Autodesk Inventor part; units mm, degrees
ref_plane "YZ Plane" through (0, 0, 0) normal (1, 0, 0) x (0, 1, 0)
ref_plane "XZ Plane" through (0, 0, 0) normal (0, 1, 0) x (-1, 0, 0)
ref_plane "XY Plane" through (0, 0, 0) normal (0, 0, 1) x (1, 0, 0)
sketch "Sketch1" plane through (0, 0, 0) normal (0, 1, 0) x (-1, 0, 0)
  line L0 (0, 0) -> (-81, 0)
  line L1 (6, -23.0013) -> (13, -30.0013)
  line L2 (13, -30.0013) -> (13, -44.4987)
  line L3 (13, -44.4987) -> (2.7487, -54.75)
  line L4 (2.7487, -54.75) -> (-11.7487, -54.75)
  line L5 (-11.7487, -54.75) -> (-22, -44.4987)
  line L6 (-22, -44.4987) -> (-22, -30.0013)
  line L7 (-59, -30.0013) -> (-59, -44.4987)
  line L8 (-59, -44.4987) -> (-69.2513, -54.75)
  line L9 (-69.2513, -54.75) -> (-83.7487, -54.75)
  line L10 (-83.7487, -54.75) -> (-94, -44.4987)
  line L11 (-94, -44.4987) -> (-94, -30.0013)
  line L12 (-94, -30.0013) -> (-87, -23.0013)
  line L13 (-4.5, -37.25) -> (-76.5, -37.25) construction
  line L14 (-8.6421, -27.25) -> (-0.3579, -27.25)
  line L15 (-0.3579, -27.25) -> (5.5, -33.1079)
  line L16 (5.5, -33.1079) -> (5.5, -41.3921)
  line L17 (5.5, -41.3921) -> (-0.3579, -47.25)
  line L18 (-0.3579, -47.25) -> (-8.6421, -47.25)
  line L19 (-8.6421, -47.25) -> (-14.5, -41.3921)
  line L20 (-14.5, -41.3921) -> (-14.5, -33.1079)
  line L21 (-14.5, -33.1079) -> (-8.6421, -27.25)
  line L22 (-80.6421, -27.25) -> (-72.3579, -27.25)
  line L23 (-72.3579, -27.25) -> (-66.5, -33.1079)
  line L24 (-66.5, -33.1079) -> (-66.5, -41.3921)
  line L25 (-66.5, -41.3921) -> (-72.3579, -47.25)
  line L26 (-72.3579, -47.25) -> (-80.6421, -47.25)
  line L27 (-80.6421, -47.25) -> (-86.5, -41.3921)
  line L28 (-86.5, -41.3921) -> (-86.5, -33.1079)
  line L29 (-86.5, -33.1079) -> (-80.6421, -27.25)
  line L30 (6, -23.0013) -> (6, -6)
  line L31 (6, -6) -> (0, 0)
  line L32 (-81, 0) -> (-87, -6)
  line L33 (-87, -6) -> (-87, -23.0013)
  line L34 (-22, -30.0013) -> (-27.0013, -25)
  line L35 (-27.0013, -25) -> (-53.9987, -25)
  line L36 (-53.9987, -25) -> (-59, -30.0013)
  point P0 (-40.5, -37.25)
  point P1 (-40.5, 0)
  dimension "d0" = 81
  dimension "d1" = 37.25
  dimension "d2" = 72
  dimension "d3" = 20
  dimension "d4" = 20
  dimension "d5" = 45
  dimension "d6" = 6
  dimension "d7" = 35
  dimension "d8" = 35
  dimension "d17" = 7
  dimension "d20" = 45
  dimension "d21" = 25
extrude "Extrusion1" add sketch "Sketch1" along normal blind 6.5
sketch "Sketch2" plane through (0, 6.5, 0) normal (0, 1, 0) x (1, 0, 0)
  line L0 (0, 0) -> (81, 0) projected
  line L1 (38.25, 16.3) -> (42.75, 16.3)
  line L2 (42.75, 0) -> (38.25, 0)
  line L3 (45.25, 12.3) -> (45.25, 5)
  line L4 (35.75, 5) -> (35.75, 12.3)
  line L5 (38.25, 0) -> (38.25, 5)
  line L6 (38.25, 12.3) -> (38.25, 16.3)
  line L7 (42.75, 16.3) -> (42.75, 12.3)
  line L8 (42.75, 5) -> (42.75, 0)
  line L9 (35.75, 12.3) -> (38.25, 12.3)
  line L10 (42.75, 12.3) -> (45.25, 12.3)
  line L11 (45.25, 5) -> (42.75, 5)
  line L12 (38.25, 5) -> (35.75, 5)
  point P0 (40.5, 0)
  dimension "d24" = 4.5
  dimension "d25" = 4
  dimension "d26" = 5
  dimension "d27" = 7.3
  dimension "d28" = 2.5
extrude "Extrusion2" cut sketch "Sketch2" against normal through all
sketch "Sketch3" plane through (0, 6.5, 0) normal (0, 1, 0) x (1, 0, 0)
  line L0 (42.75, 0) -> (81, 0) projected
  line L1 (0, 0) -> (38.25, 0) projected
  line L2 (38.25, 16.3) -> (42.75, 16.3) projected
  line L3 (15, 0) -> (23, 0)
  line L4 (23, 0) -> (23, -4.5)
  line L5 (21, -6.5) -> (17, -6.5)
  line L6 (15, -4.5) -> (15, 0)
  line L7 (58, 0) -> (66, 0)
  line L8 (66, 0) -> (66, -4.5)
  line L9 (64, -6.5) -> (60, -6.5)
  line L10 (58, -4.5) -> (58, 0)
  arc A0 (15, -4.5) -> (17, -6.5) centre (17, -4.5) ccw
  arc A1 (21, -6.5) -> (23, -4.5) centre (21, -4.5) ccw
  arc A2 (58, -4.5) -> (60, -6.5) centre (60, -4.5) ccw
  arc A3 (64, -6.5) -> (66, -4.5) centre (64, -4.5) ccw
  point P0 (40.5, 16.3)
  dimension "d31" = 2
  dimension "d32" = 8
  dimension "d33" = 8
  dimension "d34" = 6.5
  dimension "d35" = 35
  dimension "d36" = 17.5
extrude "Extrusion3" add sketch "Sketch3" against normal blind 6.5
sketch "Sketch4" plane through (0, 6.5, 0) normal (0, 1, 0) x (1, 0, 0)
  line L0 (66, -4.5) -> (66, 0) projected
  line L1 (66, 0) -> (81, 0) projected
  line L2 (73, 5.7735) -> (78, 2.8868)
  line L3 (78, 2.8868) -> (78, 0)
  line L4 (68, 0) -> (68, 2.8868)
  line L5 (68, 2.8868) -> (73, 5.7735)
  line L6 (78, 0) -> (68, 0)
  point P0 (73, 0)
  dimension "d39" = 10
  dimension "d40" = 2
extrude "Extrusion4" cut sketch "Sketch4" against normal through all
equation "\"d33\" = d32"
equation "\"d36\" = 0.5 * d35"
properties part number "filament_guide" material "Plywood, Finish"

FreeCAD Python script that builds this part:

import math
import FreeCAD as App
import Part
import Sketcher
Q = App.Units.Quantity

doc = App.newDocument("Part")
body = doc.addObject("PartDesign::Body", "Body")

sketch1 = doc.addObject("Sketcher::SketchObject", "Sketch")
body.addObject(sketch1)
sketch1.AttachmentSupport = (doc.XZ_Plane, [""])
sketch1.MapMode = "FlatFace"
sketch1.addGeometry([
    Part.LineSegment(App.Vector(-6, -6, 0), App.Vector(0, 0, 0)),
    Part.LineSegment(App.Vector(0, 0, 0), App.Vector(81, 0, 0)),
    Part.LineSegment(App.Vector(81, 0, 0), App.Vector(87, -6, 0)),
    Part.LineSegment(App.Vector(87, -6, 0), App.Vector(87, -23.0013, 0)),
    Part.LineSegment(App.Vector(87, -23.0013, 0), App.Vector(94, -30.0013, 0)),
    Part.LineSegment(App.Vector(94, -30.0013, 0), App.Vector(94, -44.4987, 0)),
    Part.LineSegment(App.Vector(94, -44.4987, 0), App.Vector(83.7487, -54.75, 0)),
    Part.LineSegment(App.Vector(83.7487, -54.75, 0), App.Vector(69.2513, -54.75, 0)),
    Part.LineSegment(App.Vector(69.2513, -54.75, 0), App.Vector(59, -44.4987, 0)),
    Part.LineSegment(App.Vector(59, -44.4987, 0), App.Vector(59, -30.0013, 0)),
    Part.LineSegment(App.Vector(59, -30.0013, 0), App.Vector(53.9987, -25, 0)),
    Part.LineSegment(App.Vector(53.9987, -25, 0), App.Vector(27.0013, -25, 0)),
    Part.LineSegment(App.Vector(27.0013, -25, 0), App.Vector(22, -30.0013, 0)),
    Part.LineSegment(App.Vector(22, -30.0013, 0), App.Vector(22, -44.4987, 0)),
    Part.LineSegment(App.Vector(22, -44.4987, 0), App.Vector(11.7487, -54.75, 0)),
    Part.LineSegment(App.Vector(11.7487, -54.75, 0), App.Vector(-2.7487, -54.75, 0)),
    Part.LineSegment(App.Vector(-2.7487, -54.75, 0), App.Vector(-13, -44.4987, 0)),
    Part.LineSegment(App.Vector(-13, -44.4987, 0), App.Vector(-13, -30.0013, 0)),
    Part.LineSegment(App.Vector(-13, -30.0013, 0), App.Vector(-6, -23.0013, 0)),
    Part.LineSegment(App.Vector(-6, -23.0013, 0), App.Vector(-6, -6, 0)),
    Part.LineSegment(App.Vector(86.5, -33.1079, 0), App.Vector(80.6421, -27.25, 0)),
    Part.LineSegment(App.Vector(80.6421, -27.25, 0), App.Vector(72.3579, -27.25, 0)),
    Part.LineSegment(App.Vector(72.3579, -27.25, 0), App.Vector(66.5, -33.1079, 0)),
    Part.LineSegment(App.Vector(66.5, -33.1079, 0), App.Vector(66.5, -41.3921, 0)),
    Part.LineSegment(App.Vector(66.5, -41.3921, 0), App.Vector(72.3579, -47.25, 0)),
    Part.LineSegment(App.Vector(72.3579, -47.25, 0), App.Vector(80.6421, -47.25, 0)),
    Part.LineSegment(App.Vector(80.6421, -47.25, 0), App.Vector(86.5, -41.3921, 0)),
    Part.LineSegment(App.Vector(86.5, -41.3921, 0), App.Vector(86.5, -33.1079, 0)),
    Part.LineSegment(App.Vector(14.5, -33.1079, 0), App.Vector(8.6421, -27.25, 0)),
    Part.LineSegment(App.Vector(8.6421, -27.25, 0), App.Vector(0.3579, -27.25, 0)),
    Part.LineSegment(App.Vector(0.3579, -27.25, 0), App.Vector(-5.5, -33.1079, 0)),
    Part.LineSegment(App.Vector(-5.5, -33.1079, 0), App.Vector(-5.5, -41.3921, 0)),
    Part.LineSegment(App.Vector(-5.5, -41.3921, 0), App.Vector(0.3579, -47.25, 0)),
    Part.LineSegment(App.Vector(0.3579, -47.25, 0), App.Vector(8.6421, -47.25, 0)),
    Part.LineSegment(App.Vector(8.6421, -47.25, 0), App.Vector(14.5, -41.3921, 0)),
    Part.LineSegment(App.Vector(14.5, -41.3921, 0), App.Vector(14.5, -33.1079, 0)),
], False)
sketch1.addConstraint([
    Sketcher.Constraint("Coincident", 0, 2, 1, 1),
    Sketcher.Constraint("Coincident", 1, 2, 2, 1),
    Sketcher.Constraint("Coincident", 2, 2, 3, 1),
    Sketcher.Constraint("Coincident", 3, 2, 4, 1),
    Sketcher.Constraint("Coincident", 4, 2, 5, 1),
    Sketcher.Constraint("Coincident", 5, 2, 6, 1),
    Sketcher.Constraint("Coincident", 6, 2, 7, 1),
    Sketcher.Constraint("Coincident", 7, 2, 8, 1),
    Sketcher.Constraint("Coincident", 8, 2, 9, 1),
    Sketcher.Constraint("Coincident", 9, 2, 10, 1),
    Sketcher.Constraint("Coincident", 10, 2, 11, 1),
    Sketcher.Constraint("Coincident", 11, 2, 12, 1),
    Sketcher.Constraint("Coincident", 12, 2, 13, 1),
    Sketcher.Constraint("Coincident", 13, 2, 14, 1),
    Sketcher.Constraint("Coincident", 14, 2, 15, 1),
    Sketcher.Constraint("Coincident", 15, 2, 16, 1),
    Sketcher.Constraint("Coincident", 16, 2, 17, 1),
    Sketcher.Constraint("Coincident", 17, 2, 18, 1),
    Sketcher.Constraint("Coincident", 18, 2, 19, 1),
    Sketcher.Constraint("Coincident", 19, 2, 0, 1),
    Sketcher.Constraint("Coincident", 20, 2, 21, 1),
    Sketcher.Constraint("Coincident", 21, 2, 22, 1),
    Sketcher.Constraint("Coincident", 22, 2, 23, 1),
    Sketcher.Constraint("Coincident", 23, 2, 24, 1),
    Sketcher.Constraint("Coincident", 24, 2, 25, 1),
    Sketcher.Constraint("Coincident", 25, 2, 26, 1),
    Sketcher.Constraint("Coincident", 26, 2, 27, 1),
    Sketcher.Constraint("Coincident", 27, 2, 20, 1),
    Sketcher.Constraint("Coincident", 28, 2, 29, 1),
    Sketcher.Constraint("Coincident", 29, 2, 30, 1),
    Sketcher.Constraint("Coincident", 30, 2, 31, 1),
    Sketcher.Constraint("Coincident", 31, 2, 32, 1),
    Sketcher.Constraint("Coincident", 32, 2, 33, 1),
    Sketcher.Constraint("Coincident", 33, 2, 34, 1),
    Sketcher.Constraint("Coincident", 34, 2, 35, 1),
    Sketcher.Constraint("Coincident", 35, 2, 28, 1),
    Sketcher.Constraint("Horizontal", 1),
    Sketcher.Constraint("Vertical", 3),
    Sketcher.Constraint("Vertical", 5),
    Sketcher.Constraint("Horizontal", 7),
    Sketcher.Constraint("Vertical", 9),
    Sketcher.Constraint("Horizontal", 11),
    Sketcher.Constraint("Vertical", 13),
    Sketcher.Constraint("Horizontal", 15),
    Sketcher.Constraint("Vertical", 17),
    Sketcher.Constraint("Vertical", 19),
    Sketcher.Constraint("Horizontal", 21),
    Sketcher.Constraint("Vertical", 23),
    Sketcher.Constraint("Horizontal", 25),
    Sketcher.Constraint("Vertical", 27),
    Sketcher.Constraint("Horizontal", 29),
    Sketcher.Constraint("Vertical", 31),
    Sketcher.Constraint("Horizontal", 33),
    Sketcher.Constraint("Vertical", 35),
    Sketcher.Constraint("Coincident", 0, 2, -1, 1),
    Sketcher.Constraint("Perpendicular", 0, 2),
    Sketcher.Constraint("Parallel", 2, 4),
    Sketcher.Constraint("Perpendicular", 4, 6),
    Sketcher.Constraint("Perpendicular", 6, 8),
    Sketcher.Constraint("Parallel", 8, 10),
    Sketcher.Constraint("Perpendicular", 10, 12),
    Sketcher.Constraint("Parallel", 12, 14),
    Sketcher.Constraint("Perpendicular", 14, 16),
    Sketcher.Constraint("Perpendicular", 16, 18),
    Sketcher.Constraint("Perpendicular", 18, 20),
    Sketcher.Constraint("Perpendicular", 20, 22),
    Sketcher.Constraint("Perpendicular", 22, 24),
    Sketcher.Constraint("Perpendicular", 24, 26),
    Sketcher.Constraint("Perpendicular", 26, 28),
    Sketcher.Constraint("Perpendicular", 28, 30),
    Sketcher.Constraint("Perpendicular", 30, 32),
    Sketcher.Constraint("Perpendicular", 32, 34),
    Sketcher.Constraint("Horizontal", 5, 2, 8, 2),
    Sketcher.Constraint("Horizontal", 4, 2, 9, 2),
    Sketcher.Constraint("Horizontal", 9, 2, 12, 2),
    Sketcher.Constraint("Horizontal", 8, 2, 13, 2),
    Sketcher.Constraint("Horizontal", 7, 2, 14, 2),
    Sketcher.Constraint("Horizontal", 13, 2, 16, 2),
    Sketcher.Constraint("Horizontal", 12, 2, 17, 2),
    Sketcher.Constraint("Horizontal", 3, 2, 18, 2),
    Sketcher.Constraint("Horizontal", 2, 2, 19, 2),
    Sketcher.Constraint("Horizontal", 23, 2, 26, 2),
    Sketcher.Constraint("Horizontal", 22, 2, 27, 2),
    Sketcher.Constraint("Horizontal", 21, 2, 28, 2),
    Sketcher.Constraint("Horizontal", 27, 2, 30, 2),
    Sketcher.Constraint("Horizontal", 26, 2, 31, 2),
    Sketcher.Constraint("Horizontal", 25, 2, 32, 2),
    Sketcher.Constraint("Horizontal", 31, 2, 34, 2),
    Sketcher.Constraint("Horizontal", 30, 2, 35, 2),
    Sketcher.Constraint("Vertical", 21, 2, 24, 2),
    Sketcher.Constraint("Vertical", 20, 2, 25, 2),
    Sketcher.Constraint("Equal", 7, 15),
    Sketcher.Constraint("Equal", 25, 29),
    Sketcher.Constraint("Equal", 15, 5),
    Sketcher.Constraint("Equal", 33, 23),
    Sketcher.Constraint("DistanceX", 1, 1, 1, 2, 81.0),
    Sketcher.Constraint("DistanceY", 2, 2, -1, 1, 6.0),
    Sketcher.Constraint("DistanceY", 10, 2, -1, 1, 25.0),
    Sketcher.Constraint("DistanceX", 3, 2, 4, 2, 7.0),
    Sketcher.Constraint("DistanceX", 8, 2, 5, 2, 35.0),
    Sketcher.Constraint("DistanceX", -1, 1, 22, 2, 66.5),
    Sketcher.Constraint("DistanceX", -1, 1, 26, 2, 86.5),
    Sketcher.Constraint("DistanceX", 30, 2, -1, 1, 5.5),
    Sketcher.Constraint("DistanceY", 7, 2, 24, 2, 7.5),
    Sketcher.Constraint("DistanceY", 6, 2, -1, 1, 54.75),
    Sketcher.Constraint("Distance", 10, 7.073),
    Sketcher.Constraint("DistanceX", 21, 2, 21, 1, 8.2842),
])
pad1 = doc.addObject("PartDesign::Pad", "Pad")
body.addObject(pad1)
pad1.Profile = sketch1
pad1.Length = 6.5
pad1.Reversed = True

sketch2 = doc.addObject("Sketcher::SketchObject", "Sketch001")
body.addObject(sketch2)
sketch2.AttachmentSupport = (doc.XZ_Plane, [""])
sketch2.MapMode = "FlatFace"
sketch2.AttachmentOffset = App.Placement(App.Vector(0, 0, -6.5), App.Rotation())
sketch2.addGeometry([
    Part.LineSegment(App.Vector(38.25, -5, 0), App.Vector(38.25, 0, 0)),
    Part.LineSegment(App.Vector(38.25, 0, 0), App.Vector(42.75, 0, 0)),
    Part.LineSegment(App.Vector(42.75, 0, 0), App.Vector(42.75, -5, 0)),
    Part.LineSegment(App.Vector(42.75, -5, 0), App.Vector(45.25, -5, 0)),
    Part.LineSegment(App.Vector(45.25, -5, 0), App.Vector(45.25, -12.3, 0)),
    Part.LineSegment(App.Vector(45.25, -12.3, 0), App.Vector(42.75, -12.3, 0)),
    Part.LineSegment(App.Vector(42.75, -12.3, 0), App.Vector(42.75, -16.3, 0)),
    Part.LineSegment(App.Vector(42.75, -16.3, 0), App.Vector(38.25, -16.3, 0)),
    Part.LineSegment(App.Vector(38.25, -16.3, 0), App.Vector(38.25, -12.3, 0)),
    Part.LineSegment(App.Vector(38.25, -12.3, 0), App.Vector(35.75, -12.3, 0)),
    Part.LineSegment(App.Vector(35.75, -12.3, 0), App.Vector(35.75, -5, 0)),
    Part.LineSegment(App.Vector(35.75, -5, 0), App.Vector(38.25, -5, 0)),
], False)
sketch2.addConstraint([
    Sketcher.Constraint("Coincident", 0, 2, 1, 1),
    Sketcher.Constraint("Coincident", 1, 2, 2, 1),
    Sketcher.Constraint("Coincident", 2, 2, 3, 1),
    Sketcher.Constraint("Coincident", 3, 2, 4, 1),
    Sketcher.Constraint("Coincident", 4, 2, 5, 1),
    Sketcher.Constraint("Coincident", 5, 2, 6, 1),
    Sketcher.Constraint("Coincident", 6, 2, 7, 1),
    Sketcher.Constraint("Coincident", 7, 2, 8, 1),
    Sketcher.Constraint("Coincident", 8, 2, 9, 1),
    Sketcher.Constraint("Coincident", 9, 2, 10, 1),
    Sketcher.Constraint("Coincident", 10, 2, 11, 1),
    Sketcher.Constraint("Coincident", 11, 2, 0, 1),
    Sketcher.Constraint("Vertical", 0),
    Sketcher.Constraint("Horizontal", 1),
    Sketcher.Constraint("Vertical", 2),
    Sketcher.Constraint("Horizontal", 3),
    Sketcher.Constraint("Vertical", 4),
    Sketcher.Constraint("Horizontal", 5),
    Sketcher.Constraint("Vertical", 6),
    Sketcher.Constraint("Horizontal", 7),
    Sketcher.Constraint("Vertical", 8),
    Sketcher.Constraint("Horizontal", 9),
    Sketcher.Constraint("Vertical", 10),
    Sketcher.Constraint("Horizontal", 11),
    Sketcher.Constraint("PointOnObject", 0, 2, -1),
    Sketcher.Constraint("Horizontal", 5, 2, 8, 2),
    Sketcher.Constraint("Horizontal", 3, 2, 10, 2),
    Sketcher.Constraint("Vertical", 2, 2, 5, 2),
    Sketcher.Constraint("Vertical", 0, 2, 7, 2),
    Sketcher.Constraint("Equal", 5, 9),
    Sketcher.Constraint("DistanceY", 0, 1, 0, 2, 5.0),
    Sketcher.Constraint("DistanceY", 6, 2, 6, 1, 4.0),
    Sketcher.Constraint("DistanceX", 1, 1, 1, 2, 4.5),
    Sketcher.Constraint("DistanceX", 3, 1, 3, 2, 2.5),
    Sketcher.Constraint("DistanceY", 4, 2, 4, 1, 7.3),
    Sketcher.Constraint("DistanceX", -1, 1, 0, 2, 38.25),
])
pocket1 = doc.addObject("PartDesign::Pocket", "Pocket")
body.addObject(pocket1)
pocket1.Profile = sketch2
pocket1.Type = "ThroughAll"
pocket1.Reversed = True

sketch3 = doc.addObject("Sketcher::SketchObject", "Sketch002")
body.addObject(sketch3)
sketch3.AttachmentSupport = (doc.XZ_Plane, [""])
sketch3.MapMode = "FlatFace"
sketch3.AttachmentOffset = App.Placement(App.Vector(0, 0, -6.5), App.Rotation())
sketch3.addGeometry([
    Part.LineSegment(App.Vector(66, 0, 0), App.Vector(58, 0, 0)),
    Part.LineSegment(App.Vector(58, 0, 0), App.Vector(58, 4.5, 0)),
    Part.ArcOfCircle(Part.Circle(App.Vector(60, 4.5, 0), App.Vector(0, 0, 1), 2), math.radians(90), math.radians(180)),
    Part.LineSegment(App.Vector(60, 6.5, 0), App.Vector(64, 6.5, 0)),
    Part.ArcOfCircle(Part.Circle(App.Vector(64, 4.5, 0), App.Vector(0, 0, 1), 2), math.radians(0), math.radians(90)),
    Part.LineSegment(App.Vector(66, 4.5, 0), App.Vector(66, 0, 0)),
    Part.LineSegment(App.Vector(23, 0, 0), App.Vector(15, 0, 0)),
    Part.LineSegment(App.Vector(15, 0, 0), App.Vector(15, 4.5, 0)),
    Part.ArcOfCircle(Part.Circle(App.Vector(17, 4.5, 0), App.Vector(0, 0, 1), 2), math.radians(90), math.radians(180)),
    Part.LineSegment(App.Vector(17, 6.5, 0), App.Vector(21, 6.5, 0)),
    Part.ArcOfCircle(Part.Circle(App.Vector(21, 4.5, 0), App.Vector(0, 0, 1), 2), math.radians(0), math.radians(90)),
    Part.LineSegment(App.Vector(23, 4.5, 0), App.Vector(23, 0, 0)),
], False)
sketch3.addConstraint([
    Sketcher.Constraint("Coincident", 0, 2, 1, 1),
    Sketcher.Constraint("Tangent", 1, 2, 2, 2),
    Sketcher.Constraint("Tangent", 2, 1, 3, 1),
    Sketcher.Constraint("Tangent", 3, 2, 4, 2),
    Sketcher.Constraint("Tangent", 4, 1, 5, 1),
    Sketcher.Constraint("Coincident", 5, 2, 0, 1),
    Sketcher.Constraint("Coincident", 6, 2, 7, 1),
    Sketcher.Constraint("Tangent", 7, 2, 8, 2),
    Sketcher.Constraint("Tangent", 8, 1, 9, 1),
    Sketcher.Constraint("Tangent", 9, 2, 10, 2),
    Sketcher.Constraint("Tangent", 10, 1, 11, 1),
    Sketcher.Constraint("Coincident", 11, 2, 6, 1),
    Sketcher.Constraint("Horizontal", 0),
    Sketcher.Constraint("Vertical", 1),
    Sketcher.Constraint("Horizontal", 3),
    Sketcher.Constraint("Vertical", 5),
    Sketcher.Constraint("Horizontal", 6),
    Sketcher.Constraint("Vertical", 7),
    Sketcher.Constraint("Horizontal", 9),
    Sketcher.Constraint("Vertical", 11),
    Sketcher.Constraint("Equal", 2, 4),
    Sketcher.Constraint("Equal", 4, 8),
    Sketcher.Constraint("Equal", 8, 10),
    Sketcher.Constraint("PointOnObject", 0, 2, -1),
    Sketcher.Constraint("PointOnObject", 6, 2, -1),
    Sketcher.Constraint("Horizontal", 4, 3, 8, 3),
    Sketcher.Constraint("Equal", 0, 6),
    Sketcher.Constraint("Radius", 2, 2.0),
    Sketcher.Constraint("DistanceX", 0, 2, 0, 1, 8.0),
    Sketcher.Constraint("DistanceY", -1, 1, 2, 1, 6.5),
    Sketcher.Constraint("DistanceX", -1, 1, 2, 3, 60.0),
    Sketcher.Constraint("DistanceX", -1, 1, 8, 3, 17.0),
])
pad2 = doc.addObject("PartDesign::Pad", "Pad001")
body.addObject(pad2)
pad2.Profile = sketch3
pad2.Length = 6.5

sketch4 = doc.addObject("Sketcher::SketchObject", "Sketch003")
body.addObject(sketch4)
sketch4.AttachmentSupport = (doc.XZ_Plane, [""])
sketch4.MapMode = "FlatFace"
sketch4.AttachmentOffset = App.Placement(App.Vector(0, 0, -6.5), App.Rotation())
sketch4.addGeometry([
    Part.LineSegment(App.Vector(68, -2.8868, 0), App.Vector(68, 0, 0)),
    Part.LineSegment(App.Vector(68, 0, 0), App.Vector(78, 0, 0)),
    Part.LineSegment(App.Vector(78, 0, 0), App.Vector(78, -2.8868, 0)),
    Part.LineSegment(App.Vector(78, -2.8868, 0), App.Vector(73, -5.7735, 0)),
    Part.LineSegment(App.Vector(73, -5.7735, 0), App.Vector(68, -2.8868, 0)),
], False)
sketch4.addConstraint([
    Sketcher.Constraint("Coincident", 0, 2, 1, 1),
    Sketcher.Constraint("Coincident", 1, 2, 2, 1),
    Sketcher.Constraint("Coincident", 2, 2, 3, 1),
    Sketcher.Constraint("Coincident", 3, 2, 4, 1),
    Sketcher.Constraint("Coincident", 4, 2, 0, 1),
    Sketcher.Constraint("Vertical", 0),
    Sketcher.Constraint("Horizontal", 1),
    Sketcher.Constraint("Vertical", 2),
    Sketcher.Constraint("PointOnObject", 0, 2, -1),
    Sketcher.Constraint("Horizontal", 2, 2, 4, 2),
    Sketcher.Constraint("Equal", 3, 4),
    Sketcher.Constraint("DistanceX", 1, 1, 1, 2, 10.0),
    Sketcher.Constraint("Angle", 3, Q("-150.0004 deg")),
    Sketcher.Constraint("DistanceX", -1, 1, 0, 2, 68.0),
    Sketcher.Constraint("DistanceY", 0, 1, 0, 2, 2.8868),
])
pocket2 = doc.addObject("PartDesign::Pocket", "Pocket001")
body.addObject(pocket2)
pocket2.Profile = sketch4
pocket2.Type = "ThroughAll"
pocket2.Reversed = True

doc.recompute()
